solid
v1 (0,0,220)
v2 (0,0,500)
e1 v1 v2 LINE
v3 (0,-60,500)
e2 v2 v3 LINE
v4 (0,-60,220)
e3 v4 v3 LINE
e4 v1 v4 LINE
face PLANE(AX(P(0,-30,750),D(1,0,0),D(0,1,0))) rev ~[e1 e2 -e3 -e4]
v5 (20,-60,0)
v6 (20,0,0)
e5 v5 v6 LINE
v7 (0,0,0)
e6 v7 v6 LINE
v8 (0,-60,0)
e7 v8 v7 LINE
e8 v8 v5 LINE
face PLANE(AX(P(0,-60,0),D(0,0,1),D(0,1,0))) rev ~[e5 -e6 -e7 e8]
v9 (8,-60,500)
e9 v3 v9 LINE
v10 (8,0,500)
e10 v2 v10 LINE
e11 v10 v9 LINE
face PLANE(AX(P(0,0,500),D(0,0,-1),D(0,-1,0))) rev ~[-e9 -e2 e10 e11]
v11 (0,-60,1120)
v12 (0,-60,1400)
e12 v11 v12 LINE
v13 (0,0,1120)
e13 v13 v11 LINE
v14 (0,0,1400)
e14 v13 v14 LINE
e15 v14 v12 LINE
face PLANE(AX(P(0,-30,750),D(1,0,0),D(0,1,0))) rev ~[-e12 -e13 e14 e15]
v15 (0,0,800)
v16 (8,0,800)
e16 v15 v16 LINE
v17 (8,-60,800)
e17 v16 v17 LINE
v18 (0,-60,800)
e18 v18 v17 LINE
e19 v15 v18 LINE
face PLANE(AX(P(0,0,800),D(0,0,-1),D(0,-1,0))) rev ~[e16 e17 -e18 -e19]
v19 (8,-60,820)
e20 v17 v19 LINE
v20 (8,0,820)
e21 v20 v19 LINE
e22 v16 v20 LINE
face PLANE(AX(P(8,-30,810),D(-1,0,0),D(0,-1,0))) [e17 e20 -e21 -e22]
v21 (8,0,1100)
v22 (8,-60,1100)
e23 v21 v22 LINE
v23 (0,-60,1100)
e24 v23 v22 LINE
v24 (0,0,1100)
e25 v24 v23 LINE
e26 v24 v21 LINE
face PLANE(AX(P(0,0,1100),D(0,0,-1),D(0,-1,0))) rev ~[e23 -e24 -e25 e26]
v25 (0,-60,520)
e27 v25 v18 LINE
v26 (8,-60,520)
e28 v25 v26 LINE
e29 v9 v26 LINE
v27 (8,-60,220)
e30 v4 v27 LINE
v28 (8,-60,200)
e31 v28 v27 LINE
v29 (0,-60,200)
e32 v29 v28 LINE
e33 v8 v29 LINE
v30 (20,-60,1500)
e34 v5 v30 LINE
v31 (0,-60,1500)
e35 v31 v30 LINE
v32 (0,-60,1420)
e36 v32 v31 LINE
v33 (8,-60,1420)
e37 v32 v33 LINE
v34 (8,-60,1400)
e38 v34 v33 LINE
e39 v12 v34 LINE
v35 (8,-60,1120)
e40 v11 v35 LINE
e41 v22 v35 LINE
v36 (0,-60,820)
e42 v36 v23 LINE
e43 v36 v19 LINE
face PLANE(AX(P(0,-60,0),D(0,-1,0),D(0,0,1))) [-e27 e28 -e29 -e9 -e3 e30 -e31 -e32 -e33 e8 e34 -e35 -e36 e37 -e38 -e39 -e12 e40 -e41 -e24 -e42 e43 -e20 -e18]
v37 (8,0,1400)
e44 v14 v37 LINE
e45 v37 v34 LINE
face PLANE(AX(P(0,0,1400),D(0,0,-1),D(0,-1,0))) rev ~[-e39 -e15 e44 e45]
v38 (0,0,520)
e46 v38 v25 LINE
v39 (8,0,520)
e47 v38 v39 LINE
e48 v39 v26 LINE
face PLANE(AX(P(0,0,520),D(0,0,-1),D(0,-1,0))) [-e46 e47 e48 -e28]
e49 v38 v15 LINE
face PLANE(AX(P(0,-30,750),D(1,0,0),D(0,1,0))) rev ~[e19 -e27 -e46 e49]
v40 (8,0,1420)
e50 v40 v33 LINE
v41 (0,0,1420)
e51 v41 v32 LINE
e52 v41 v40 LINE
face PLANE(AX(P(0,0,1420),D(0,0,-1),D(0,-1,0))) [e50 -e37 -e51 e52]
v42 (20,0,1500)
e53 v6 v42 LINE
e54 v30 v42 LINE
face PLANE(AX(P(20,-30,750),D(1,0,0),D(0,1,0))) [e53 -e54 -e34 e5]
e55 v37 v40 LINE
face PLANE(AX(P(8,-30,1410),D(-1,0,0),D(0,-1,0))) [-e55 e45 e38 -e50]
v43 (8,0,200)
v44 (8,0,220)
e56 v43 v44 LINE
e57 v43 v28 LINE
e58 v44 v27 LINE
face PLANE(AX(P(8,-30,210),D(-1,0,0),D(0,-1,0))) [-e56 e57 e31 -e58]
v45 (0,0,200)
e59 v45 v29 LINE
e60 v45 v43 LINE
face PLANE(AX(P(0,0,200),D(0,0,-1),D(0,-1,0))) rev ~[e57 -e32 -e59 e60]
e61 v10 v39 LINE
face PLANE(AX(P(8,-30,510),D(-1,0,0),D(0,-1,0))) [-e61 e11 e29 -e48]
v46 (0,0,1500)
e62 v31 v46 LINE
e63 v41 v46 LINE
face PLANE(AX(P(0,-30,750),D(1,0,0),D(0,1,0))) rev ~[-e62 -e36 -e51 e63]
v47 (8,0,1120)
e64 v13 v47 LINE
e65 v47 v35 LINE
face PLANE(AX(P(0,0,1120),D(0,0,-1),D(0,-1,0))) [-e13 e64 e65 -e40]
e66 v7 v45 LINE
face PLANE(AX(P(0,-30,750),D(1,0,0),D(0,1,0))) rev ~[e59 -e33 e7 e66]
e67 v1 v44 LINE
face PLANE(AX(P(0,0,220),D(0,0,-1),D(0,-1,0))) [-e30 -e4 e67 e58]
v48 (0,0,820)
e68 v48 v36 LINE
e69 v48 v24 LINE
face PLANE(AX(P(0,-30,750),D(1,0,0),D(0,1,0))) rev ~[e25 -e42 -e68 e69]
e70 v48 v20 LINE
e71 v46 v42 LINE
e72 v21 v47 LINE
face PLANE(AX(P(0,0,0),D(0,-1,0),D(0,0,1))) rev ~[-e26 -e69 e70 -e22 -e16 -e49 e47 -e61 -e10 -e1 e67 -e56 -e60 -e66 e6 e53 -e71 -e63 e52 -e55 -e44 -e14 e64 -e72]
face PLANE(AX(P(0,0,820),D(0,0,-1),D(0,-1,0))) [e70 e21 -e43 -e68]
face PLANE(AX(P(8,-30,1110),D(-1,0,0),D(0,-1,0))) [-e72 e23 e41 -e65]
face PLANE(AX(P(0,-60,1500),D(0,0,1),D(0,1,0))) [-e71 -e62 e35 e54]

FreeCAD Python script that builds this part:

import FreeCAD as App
import Part
import Sketcher
from FreeCAD import Vector
Q = App.Units.Quantity

doc = App.newDocument("Part")
params = doc.addObject("Spreadsheet::Sheet", "Params")
for row, (alias, value) in enumerate([
    ("sketch1_width", "60 mm"),
    ("sketch1_height", "1500 mm"),
    ("pad1_length", "20 mm"),
    ("sketch2_width", "60 mm"),
    ("sketch2_height", "20 mm"),
    ("pocket1_length", "8 mm"),
], start=1):
    params.set(f"A{row}", alias)
    params.set(f"B{row}", "=" + value)
    params.setAlias(f"B{row}", alias)

body = doc.addObject("PartDesign::Body", "Body")

sketch1 = body.newObject("Sketcher::SketchObject", "Sketch")
sketch1.AttachmentSupport = (doc.getObject("YZ_Plane"), [""])
sketch1.MapMode = "FlatFace"
sketch1.addGeometry([
    Part.LineSegment(Vector(-60, 1500, 0), Vector(-60, 0, 0)),
    Part.LineSegment(Vector(-60, 0, 0), Vector(0, 0, 0)),
    Part.LineSegment(Vector(0, 0, 0), Vector(0, 1500, 0)),
    Part.LineSegment(Vector(0, 1500, 0), Vector(-60, 1500, 0)),
], False)
sketch1.addConstraint([
    Sketcher.Constraint("Coincident", 0, 2, 1, 1),
    Sketcher.Constraint("Coincident", 1, 2, 2, 1),
    Sketcher.Constraint("Coincident", 2, 2, 3, 1),
    Sketcher.Constraint("Coincident", 3, 2, 0, 1),
    Sketcher.Constraint("Vertical", 0),
    Sketcher.Constraint("Horizontal", 1),
    Sketcher.Constraint("Vertical", 2),
    Sketcher.Constraint("Horizontal", 3),
    Sketcher.Constraint("Coincident", 1, 2, -1, 1),
    Sketcher.Constraint("DistanceX", 1, 1, 1, 2, Q("60 mm")),
    Sketcher.Constraint("DistanceY", 0, 2, 0, 1, Q("1500 mm")),
])
sketch1.setExpression("Constraints[9]", "Params.sketch1_width")
sketch1.setExpression("Constraints[10]", "Params.sketch1_height")
pad1 = body.newObject("PartDesign::Pad", "Pad")
pad1.Profile = sketch1
pad1.setExpression("Length", "Params.pad1_length")

sketch2 = body.newObject("Sketcher::SketchObject", "Sketch001")
sketch2.AttachmentSupport = (doc.getObject("YZ_Plane"), [""])
sketch2.MapMode = "FlatFace"
sketch2.addGeometry([
    Part.LineSegment(Vector(0, 220, 0), Vector(0, 200, 0)),
    Part.LineSegment(Vector(0, 200, 0), Vector(-60, 200, 0)),
    Part.LineSegment(Vector(-60, 200, 0), Vector(-60, 220, 0)),
    Part.LineSegment(Vector(-60, 220, 0), Vector(0, 220, 0)),
    Part.LineSegment(Vector(0, 520, 0), Vector(0, 500, 0)),
    Part.LineSegment(Vector(0, 500, 0), Vector(-60, 500, 0)),
    Part.LineSegment(Vector(-60, 500, 0), Vector(-60, 520, 0)),
    Part.LineSegment(Vector(-60, 520, 0), Vector(0, 520, 0)),
    Part.LineSegment(Vector(0, 820, 0), Vector(0, 800, 0)),
    Part.LineSegment(Vector(0, 800, 0), Vector(-60, 800, 0)),
    Part.LineSegment(Vector(-60, 800, 0), Vector(-60, 820, 0)),
    Part.LineSegment(Vector(-60, 820, 0), Vector(0, 820, 0)),
    Part.LineSegment(Vector(0, 1120, 0), Vector(0, 1100, 0)),
    Part.LineSegment(Vector(0, 1100, 0), Vector(-60, 1100, 0)),
    Part.LineSegment(Vector(-60, 1100, 0), Vector(-60, 1120, 0)),
    Part.LineSegment(Vector(-60, 1120, 0), Vector(0, 1120, 0)),
    Part.LineSegment(Vector(0, 1420, 0), Vector(0, 1400, 0)),
    Part.LineSegment(Vector(0, 1400, 0), Vector(-60, 1400, 0)),
    Part.LineSegment(Vector(-60, 1400, 0), Vector(-60, 1420, 0)),
    Part.LineSegment(Vector(-60, 1420, 0), Vector(0, 1420, 0)),
], False)
sketch2.addConstraint([
    Sketcher.Constraint("Coincident", 0, 2, 1, 1),
    Sketcher.Constraint("Coincident", 1, 2, 2, 1),
    Sketcher.Constraint("Coincident", 2, 2, 3, 1),
    Sketcher.Constraint("Coincident", 3, 2, 0, 1),
    Sketcher.Constraint("Coincident", 4, 2, 5, 1),
    Sketcher.Constraint("Coincident", 5, 2, 6, 1),
    Sketcher.Constraint("Coincident", 6, 2, 7, 1),
    Sketcher.Constraint("Coincident", 7, 2, 4, 1),
    Sketcher.Constraint("Coincident", 8, 2, 9, 1),
    Sketcher.Constraint("Coincident", 9, 2, 10, 1),
    Sketcher.Constraint("Coincident", 10, 2, 11, 1),
    Sketcher.Constraint("Coincident", 11, 2, 8, 1),
    Sketcher.Constraint("Coincident", 12, 2, 13, 1),
    Sketcher.Constraint("Coincident", 13, 2, 14, 1),
    Sketcher.Constraint("Coincident", 14, 2, 15, 1),
    Sketcher.Constraint("Coincident", 15, 2, 12, 1),
    Sketcher.Constraint("Coincident", 16, 2, 17, 1),
    Sketcher.Constraint("Coincident", 17, 2, 18, 1),
    Sketcher.Constraint("Coincident", 18, 2, 19, 1),
    Sketcher.Constraint("Coincident", 19, 2, 16, 1),
    Sketcher.Constraint("Vertical", 0),
    Sketcher.Constraint("Horizontal", 1),
    Sketcher.Constraint("Vertical", 2),
    Sketcher.Constraint("Horizontal", 3),
    Sketcher.Constraint("Vertical", 4),
    Sketcher.Constraint("Horizontal", 5),
    Sketcher.Constraint("Vertical", 6),
    Sketcher.Constraint("Horizontal", 7),
    Sketcher.Constraint("Vertical", 8),
    Sketcher.Constraint("Horizontal", 9),
    Sketcher.Constraint("Vertical", 10),
    Sketcher.Constraint("Horizontal", 11),
    Sketcher.Constraint("Vertical", 12),
    Sketcher.Constraint("Horizontal", 13),
    Sketcher.Constraint("Vertical", 14),
    Sketcher.Constraint("Horizontal", 15),
    Sketcher.Constraint("Vertical", 16),
    Sketcher.Constraint("Horizontal", 17),
    Sketcher.Constraint("Vertical", 18),
    Sketcher.Constraint("Horizontal", 19),
    Sketcher.Constraint("PointOnObject", 0, 2, -2),
    Sketcher.Constraint("PointOnObject", 4, 2, -2),
    Sketcher.Constraint("PointOnObject", 8, 2, -2),
    Sketcher.Constraint("PointOnObject", 12, 2, -2),
    Sketcher.Constraint("PointOnObject", 16, 2, -2),
    Sketcher.Constraint("Vertical", 2, 2, 5, 2),
    Sketcher.Constraint("Vertical", 6, 2, 9, 2),
    Sketcher.Constraint("Vertical", 10, 2, 13, 2),
    Sketcher.Constraint("Vertical", 14, 2, 17, 2),
    Sketcher.Constraint("Equal", 2, 4),
    Sketcher.Constraint("Equal", 6, 8),
    Sketcher.Constraint("Equal", 10, 12),
    Sketcher.Constraint("Equal", 14, 16),
    Sketcher.Constraint("DistanceX", 1, 2, 1, 1, Q("60 mm")),
    Sketcher.Constraint("DistanceY", 0, 2, 0, 1, Q("20 mm")),
    Sketcher.Constraint("DistanceY", -1, 1, 0, 2, Q("200 mm")),
    Sketcher.Constraint("DistanceY", -1, 1, 4, 2, Q("500 mm")),
    Sketcher.Constraint("DistanceY", -1, 1, 8, 2, Q("800 mm")),
    Sketcher.Constraint("DistanceY", -1, 1, 12, 2, Q("1100 mm")),
    Sketcher.Constraint("DistanceY", -1, 1, 16, 2, Q("1400 mm")),
])
sketch2.setExpression("Constraints[53]", "Params.sketch2_width")
sketch2.setExpression("Constraints[54]", "Params.sketch2_height")
pocket1 = body.newObject("PartDesign::Pocket", "Pocket")
pocket1.Profile = sketch2
pocket1.setExpression("Length", "Params.pocket1_length")
pocket1.Reversed = True

doc.recompute()
